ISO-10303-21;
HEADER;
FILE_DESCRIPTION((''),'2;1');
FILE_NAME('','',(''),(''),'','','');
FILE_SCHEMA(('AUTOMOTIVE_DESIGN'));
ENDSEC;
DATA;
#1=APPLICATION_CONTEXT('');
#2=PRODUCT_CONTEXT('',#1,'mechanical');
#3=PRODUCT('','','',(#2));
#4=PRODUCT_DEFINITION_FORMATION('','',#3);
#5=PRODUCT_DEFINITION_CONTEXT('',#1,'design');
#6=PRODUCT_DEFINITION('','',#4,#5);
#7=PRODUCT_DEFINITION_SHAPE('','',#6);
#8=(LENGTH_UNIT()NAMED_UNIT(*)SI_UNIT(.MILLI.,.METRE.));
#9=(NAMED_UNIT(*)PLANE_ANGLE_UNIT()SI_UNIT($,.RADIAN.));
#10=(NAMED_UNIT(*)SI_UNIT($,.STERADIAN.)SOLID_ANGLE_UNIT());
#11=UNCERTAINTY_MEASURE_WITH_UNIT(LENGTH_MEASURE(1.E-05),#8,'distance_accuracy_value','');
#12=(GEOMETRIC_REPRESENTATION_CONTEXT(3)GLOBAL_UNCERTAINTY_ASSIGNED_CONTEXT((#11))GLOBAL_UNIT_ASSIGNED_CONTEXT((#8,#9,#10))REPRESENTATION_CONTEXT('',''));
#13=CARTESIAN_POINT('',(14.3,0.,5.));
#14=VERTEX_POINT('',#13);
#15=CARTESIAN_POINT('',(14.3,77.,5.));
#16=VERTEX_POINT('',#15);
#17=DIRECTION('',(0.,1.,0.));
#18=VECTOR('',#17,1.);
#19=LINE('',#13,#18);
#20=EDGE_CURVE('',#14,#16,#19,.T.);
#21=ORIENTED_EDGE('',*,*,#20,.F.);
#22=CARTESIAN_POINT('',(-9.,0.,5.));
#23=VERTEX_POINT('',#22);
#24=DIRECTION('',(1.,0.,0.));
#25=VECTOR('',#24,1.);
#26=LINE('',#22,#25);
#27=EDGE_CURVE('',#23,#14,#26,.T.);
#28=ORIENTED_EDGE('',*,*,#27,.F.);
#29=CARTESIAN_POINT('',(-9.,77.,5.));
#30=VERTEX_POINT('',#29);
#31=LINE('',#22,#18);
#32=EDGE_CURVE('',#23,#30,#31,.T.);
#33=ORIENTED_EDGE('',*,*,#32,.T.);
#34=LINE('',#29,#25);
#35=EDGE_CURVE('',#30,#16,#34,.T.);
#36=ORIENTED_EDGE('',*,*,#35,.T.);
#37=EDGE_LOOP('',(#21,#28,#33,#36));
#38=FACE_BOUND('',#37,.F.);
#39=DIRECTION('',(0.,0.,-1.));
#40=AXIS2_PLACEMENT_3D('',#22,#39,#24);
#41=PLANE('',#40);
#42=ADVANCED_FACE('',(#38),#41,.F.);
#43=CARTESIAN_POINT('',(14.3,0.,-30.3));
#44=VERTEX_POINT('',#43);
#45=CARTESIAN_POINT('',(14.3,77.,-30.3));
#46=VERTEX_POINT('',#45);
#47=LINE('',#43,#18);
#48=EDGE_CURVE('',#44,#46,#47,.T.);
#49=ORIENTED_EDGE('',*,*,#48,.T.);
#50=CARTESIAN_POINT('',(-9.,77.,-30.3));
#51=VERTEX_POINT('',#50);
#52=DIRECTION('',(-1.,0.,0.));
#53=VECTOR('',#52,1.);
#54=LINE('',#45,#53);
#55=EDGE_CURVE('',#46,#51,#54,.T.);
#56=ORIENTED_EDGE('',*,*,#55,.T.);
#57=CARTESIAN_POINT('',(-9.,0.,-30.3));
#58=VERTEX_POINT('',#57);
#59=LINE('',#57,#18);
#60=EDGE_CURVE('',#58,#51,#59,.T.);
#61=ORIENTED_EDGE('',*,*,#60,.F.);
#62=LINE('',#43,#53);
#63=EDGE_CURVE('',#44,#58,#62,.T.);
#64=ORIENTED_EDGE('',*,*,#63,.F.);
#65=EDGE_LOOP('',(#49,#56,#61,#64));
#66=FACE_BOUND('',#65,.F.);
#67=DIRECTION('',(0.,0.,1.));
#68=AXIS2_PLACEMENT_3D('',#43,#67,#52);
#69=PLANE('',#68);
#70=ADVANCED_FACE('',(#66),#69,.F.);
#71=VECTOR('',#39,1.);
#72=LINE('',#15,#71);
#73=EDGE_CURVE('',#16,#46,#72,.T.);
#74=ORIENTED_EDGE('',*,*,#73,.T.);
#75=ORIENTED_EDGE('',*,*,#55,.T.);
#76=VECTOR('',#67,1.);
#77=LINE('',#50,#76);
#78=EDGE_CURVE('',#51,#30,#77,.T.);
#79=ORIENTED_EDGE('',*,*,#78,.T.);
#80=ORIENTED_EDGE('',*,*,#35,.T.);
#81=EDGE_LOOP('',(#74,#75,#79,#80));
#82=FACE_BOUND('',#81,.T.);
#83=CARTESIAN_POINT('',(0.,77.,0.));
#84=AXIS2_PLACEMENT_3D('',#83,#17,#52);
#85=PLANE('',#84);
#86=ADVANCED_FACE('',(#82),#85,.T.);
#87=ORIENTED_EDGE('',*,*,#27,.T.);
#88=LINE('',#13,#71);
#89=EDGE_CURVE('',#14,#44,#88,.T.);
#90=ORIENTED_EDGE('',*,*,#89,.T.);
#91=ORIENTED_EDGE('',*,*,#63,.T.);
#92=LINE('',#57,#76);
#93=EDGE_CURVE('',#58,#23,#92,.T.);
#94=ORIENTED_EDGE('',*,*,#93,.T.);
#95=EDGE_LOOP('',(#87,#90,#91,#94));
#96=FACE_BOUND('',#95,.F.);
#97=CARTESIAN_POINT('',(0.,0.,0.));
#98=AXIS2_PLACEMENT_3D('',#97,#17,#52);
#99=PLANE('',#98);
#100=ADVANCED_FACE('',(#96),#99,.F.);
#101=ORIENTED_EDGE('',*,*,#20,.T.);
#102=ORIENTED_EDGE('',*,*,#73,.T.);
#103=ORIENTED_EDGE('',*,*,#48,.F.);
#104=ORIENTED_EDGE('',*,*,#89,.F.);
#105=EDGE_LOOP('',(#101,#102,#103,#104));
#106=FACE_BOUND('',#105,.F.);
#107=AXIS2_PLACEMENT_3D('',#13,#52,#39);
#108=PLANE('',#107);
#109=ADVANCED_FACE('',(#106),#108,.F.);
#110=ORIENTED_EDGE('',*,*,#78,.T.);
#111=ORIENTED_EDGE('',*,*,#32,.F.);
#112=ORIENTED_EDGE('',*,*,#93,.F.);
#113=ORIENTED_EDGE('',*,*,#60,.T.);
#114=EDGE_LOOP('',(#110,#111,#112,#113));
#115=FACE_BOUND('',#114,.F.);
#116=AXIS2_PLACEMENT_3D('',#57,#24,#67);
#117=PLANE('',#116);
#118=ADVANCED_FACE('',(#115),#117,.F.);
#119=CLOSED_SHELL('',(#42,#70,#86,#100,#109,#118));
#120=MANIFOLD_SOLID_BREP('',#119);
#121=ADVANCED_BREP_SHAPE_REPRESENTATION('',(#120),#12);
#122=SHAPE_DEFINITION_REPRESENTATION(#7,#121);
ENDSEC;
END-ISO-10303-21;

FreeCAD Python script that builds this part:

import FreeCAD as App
import Part
import Sketcher

V = App.Vector
Q = App.Units.Quantity


def add_polygon(sketch, points):
    """Adds a closed chain of lines whose ends are joined by coincident constraints."""
    first, n = sketch.GeometryCount, len(points)
    for a, b in zip(points, points[1:] + points[:1]):
        sketch.addGeometry(Part.LineSegment(App.Vector(*a, 0), App.Vector(*b, 0)), False)
    for i in range(n):
        sketch.addConstraint(Sketcher.Constraint("Coincident", first + i, 2, first + (i + 1) % n, 1))

doc = App.newDocument("Part")
body = doc.addObject("PartDesign::Body", "Body")

# Sketch on XZ plane
sketch1 = body.newObject("Sketcher::SketchObject", "Sketch")
sketch1.AttachmentSupport = (doc.getObject("XZ_Plane"), [""])
sketch1.MapMode = "FlatFace"
add_polygon(sketch1, [(-9, -30), (-9, 5), (14, 5), (14, -30)])  # lines 0-3
sketch1.addConstraint([
    Sketcher.Constraint("Vertical", 0),
    Sketcher.Constraint("Horizontal", 1),
    Sketcher.Constraint("Vertical", 2),
    Sketcher.Constraint("Horizontal", 3),
    Sketcher.Constraint("DistanceX", 1, 1, 1, 2, Q("23.3 mm")),
    Sketcher.Constraint("DistanceY", 0, 1, 0, 2, Q("35.3 mm")),
    Sketcher.Constraint("DistanceX", 0, 2, -1, 1, Q("9 mm")),
    Sketcher.Constraint("DistanceY", -1, 1, 0, 2, Q("5 mm")),
])
pad1 = body.newObject("PartDesign::Pad", "Pad")
pad1.Profile = sketch1
pad1.Length = 77
pad1.Reversed = True

doc.recompute()
